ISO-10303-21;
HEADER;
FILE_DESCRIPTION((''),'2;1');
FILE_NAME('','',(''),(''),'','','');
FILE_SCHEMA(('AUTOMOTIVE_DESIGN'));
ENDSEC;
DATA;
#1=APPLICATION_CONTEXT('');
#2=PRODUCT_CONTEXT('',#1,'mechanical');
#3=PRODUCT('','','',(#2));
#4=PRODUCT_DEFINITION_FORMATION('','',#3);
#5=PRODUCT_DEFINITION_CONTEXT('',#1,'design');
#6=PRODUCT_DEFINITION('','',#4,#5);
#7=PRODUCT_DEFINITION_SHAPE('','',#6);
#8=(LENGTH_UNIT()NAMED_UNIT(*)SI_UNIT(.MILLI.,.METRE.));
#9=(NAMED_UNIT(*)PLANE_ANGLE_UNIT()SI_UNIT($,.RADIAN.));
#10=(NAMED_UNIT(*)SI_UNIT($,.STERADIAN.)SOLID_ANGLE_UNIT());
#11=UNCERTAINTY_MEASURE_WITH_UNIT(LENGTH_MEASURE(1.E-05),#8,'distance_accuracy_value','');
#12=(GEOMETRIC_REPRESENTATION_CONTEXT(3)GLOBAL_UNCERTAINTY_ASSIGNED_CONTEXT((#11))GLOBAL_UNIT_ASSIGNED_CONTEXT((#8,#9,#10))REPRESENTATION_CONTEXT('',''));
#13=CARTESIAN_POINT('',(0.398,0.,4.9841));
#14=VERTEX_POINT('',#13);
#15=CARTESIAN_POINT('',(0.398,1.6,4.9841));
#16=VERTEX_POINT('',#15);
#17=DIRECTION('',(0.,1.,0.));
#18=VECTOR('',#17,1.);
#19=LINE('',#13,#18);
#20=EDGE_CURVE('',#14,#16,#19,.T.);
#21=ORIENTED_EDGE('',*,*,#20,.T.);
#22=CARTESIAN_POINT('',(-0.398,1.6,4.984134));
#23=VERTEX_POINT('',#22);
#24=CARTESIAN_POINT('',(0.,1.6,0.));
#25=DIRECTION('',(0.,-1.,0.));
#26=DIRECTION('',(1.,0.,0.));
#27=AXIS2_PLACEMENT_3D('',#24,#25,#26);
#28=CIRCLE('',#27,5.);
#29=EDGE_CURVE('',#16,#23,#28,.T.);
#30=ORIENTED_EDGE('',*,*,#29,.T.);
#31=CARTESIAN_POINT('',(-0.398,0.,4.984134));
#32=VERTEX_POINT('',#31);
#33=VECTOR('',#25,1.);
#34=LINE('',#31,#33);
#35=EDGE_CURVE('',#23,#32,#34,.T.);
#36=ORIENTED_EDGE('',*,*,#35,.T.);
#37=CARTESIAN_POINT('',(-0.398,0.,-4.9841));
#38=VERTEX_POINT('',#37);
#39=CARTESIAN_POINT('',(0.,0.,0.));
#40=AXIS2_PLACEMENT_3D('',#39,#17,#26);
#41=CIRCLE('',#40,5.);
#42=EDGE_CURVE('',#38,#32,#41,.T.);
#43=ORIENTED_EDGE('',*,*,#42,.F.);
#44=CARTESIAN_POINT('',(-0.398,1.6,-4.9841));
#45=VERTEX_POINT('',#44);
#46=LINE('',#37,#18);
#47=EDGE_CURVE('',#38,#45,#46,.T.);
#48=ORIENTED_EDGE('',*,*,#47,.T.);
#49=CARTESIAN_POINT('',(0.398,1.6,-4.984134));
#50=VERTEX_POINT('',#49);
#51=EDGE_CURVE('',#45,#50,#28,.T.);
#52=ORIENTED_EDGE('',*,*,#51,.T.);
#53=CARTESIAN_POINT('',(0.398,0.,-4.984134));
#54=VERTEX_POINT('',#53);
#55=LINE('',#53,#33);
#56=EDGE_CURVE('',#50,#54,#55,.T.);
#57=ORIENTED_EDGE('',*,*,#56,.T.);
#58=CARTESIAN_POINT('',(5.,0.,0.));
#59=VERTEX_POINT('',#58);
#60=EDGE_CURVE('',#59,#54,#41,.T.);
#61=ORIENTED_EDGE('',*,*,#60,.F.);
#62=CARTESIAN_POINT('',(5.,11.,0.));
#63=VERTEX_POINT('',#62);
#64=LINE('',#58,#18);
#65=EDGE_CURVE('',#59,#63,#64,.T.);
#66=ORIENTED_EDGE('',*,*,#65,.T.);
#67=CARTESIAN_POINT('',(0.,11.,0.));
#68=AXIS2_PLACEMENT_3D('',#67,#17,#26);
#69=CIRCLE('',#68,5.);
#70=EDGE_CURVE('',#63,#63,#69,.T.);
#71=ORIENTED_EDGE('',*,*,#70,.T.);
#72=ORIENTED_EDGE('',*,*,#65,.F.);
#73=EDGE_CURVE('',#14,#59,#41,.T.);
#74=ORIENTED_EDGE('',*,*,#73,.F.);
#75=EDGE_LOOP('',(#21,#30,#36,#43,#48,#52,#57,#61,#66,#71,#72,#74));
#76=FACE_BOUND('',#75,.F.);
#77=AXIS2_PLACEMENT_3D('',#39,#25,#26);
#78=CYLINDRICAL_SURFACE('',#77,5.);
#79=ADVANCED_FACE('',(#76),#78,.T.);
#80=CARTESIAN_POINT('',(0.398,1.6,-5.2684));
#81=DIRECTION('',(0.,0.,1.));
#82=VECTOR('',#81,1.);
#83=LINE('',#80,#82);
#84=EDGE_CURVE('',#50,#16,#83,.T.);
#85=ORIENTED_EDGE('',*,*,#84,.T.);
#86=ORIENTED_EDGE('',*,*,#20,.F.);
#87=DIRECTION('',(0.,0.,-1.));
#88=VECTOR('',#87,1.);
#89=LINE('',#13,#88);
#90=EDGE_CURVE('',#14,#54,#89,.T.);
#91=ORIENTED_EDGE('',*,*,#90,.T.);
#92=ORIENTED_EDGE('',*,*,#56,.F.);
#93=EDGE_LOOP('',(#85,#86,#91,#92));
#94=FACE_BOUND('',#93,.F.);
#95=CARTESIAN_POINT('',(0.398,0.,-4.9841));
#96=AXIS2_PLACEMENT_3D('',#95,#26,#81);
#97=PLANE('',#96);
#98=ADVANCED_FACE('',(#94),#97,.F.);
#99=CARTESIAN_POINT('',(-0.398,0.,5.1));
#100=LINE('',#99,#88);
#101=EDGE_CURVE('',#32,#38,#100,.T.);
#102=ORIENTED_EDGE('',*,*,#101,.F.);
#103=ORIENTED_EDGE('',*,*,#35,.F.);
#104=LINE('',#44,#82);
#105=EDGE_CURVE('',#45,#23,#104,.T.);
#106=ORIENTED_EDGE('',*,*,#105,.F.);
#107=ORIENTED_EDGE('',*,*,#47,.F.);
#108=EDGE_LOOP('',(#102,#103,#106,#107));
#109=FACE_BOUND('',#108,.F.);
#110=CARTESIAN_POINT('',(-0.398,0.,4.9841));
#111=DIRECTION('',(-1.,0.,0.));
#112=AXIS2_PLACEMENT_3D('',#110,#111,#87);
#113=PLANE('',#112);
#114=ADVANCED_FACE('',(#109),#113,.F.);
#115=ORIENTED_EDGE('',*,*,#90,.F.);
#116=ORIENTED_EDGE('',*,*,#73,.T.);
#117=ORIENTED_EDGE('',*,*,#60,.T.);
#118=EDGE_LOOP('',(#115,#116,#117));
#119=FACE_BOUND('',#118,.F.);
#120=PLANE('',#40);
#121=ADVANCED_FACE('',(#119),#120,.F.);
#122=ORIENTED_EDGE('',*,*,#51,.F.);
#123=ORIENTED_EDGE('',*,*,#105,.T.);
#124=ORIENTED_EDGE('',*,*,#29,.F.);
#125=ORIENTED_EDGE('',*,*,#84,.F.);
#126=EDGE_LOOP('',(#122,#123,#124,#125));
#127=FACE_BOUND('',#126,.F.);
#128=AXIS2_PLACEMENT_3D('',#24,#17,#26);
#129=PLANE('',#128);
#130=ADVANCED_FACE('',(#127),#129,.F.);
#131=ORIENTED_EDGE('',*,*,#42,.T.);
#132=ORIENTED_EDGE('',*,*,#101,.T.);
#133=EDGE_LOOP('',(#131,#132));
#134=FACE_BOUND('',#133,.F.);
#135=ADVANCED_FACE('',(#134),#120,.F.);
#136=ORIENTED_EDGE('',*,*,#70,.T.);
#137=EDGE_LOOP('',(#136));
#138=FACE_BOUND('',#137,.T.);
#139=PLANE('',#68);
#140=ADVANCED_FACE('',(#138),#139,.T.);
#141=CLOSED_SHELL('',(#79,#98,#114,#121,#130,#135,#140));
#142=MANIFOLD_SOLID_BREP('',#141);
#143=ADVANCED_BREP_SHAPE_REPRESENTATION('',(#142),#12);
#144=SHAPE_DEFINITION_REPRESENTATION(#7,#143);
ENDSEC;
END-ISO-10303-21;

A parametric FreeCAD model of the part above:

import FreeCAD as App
import Part
import Sketcher
Q = App.Units.Quantity

doc = App.newDocument("Part")
params = doc.addObject("Spreadsheet::Sheet", "Params")
for row, (alias, value) in enumerate([
    ("pad1_length", "11 mm"),
    ("sketch2_height", "0.397 in"),
    ("pocket1_length", "0.0629921 in"),
], start=1):
    params.set(f"A{row}", alias)
    params.set(f"B{row}", "=" + value)
    params.setAlias(f"B{row}", alias)

body = doc.addObject("PartDesign::Body", "Body")

# Sketch on XZ plane
sketch1 = body.newObject("Sketcher::SketchObject", "Sketch")
sketch1.AttachmentSupport = (doc.getObject("XZ_Plane"), [""])
sketch1.MapMode = "FlatFace"
sketch1.addGeometry(Part.Circle(App.Vector(0, 0, 0), App.Vector(0, 0, 1), 5), False)
sketch1.addConstraint([
    Sketcher.Constraint("Coincident", 0, 3, -1, 1),
    Sketcher.Constraint("Diameter", 0, Q("0.3937 in")),
])
pad1 = body.newObject("PartDesign::Pad", "Pad")
pad1.Profile = sketch1
pad1.setExpression("Length", "Params.pad1_length")
pad1.Reversed = True

# Sketch on XZ plane
sketch2 = body.newObject("Sketcher::SketchObject", "Sketch001")
sketch2.AttachmentSupport = (doc.getObject("XZ_Plane"), [""])
sketch2.MapMode = "FlatFace"
sketch2.addGeometry([
    Part.LineSegment(App.Vector(0.4, 4.98, 0), App.Vector(0.4, -5.27, 0)),  # 0
    Part.LineSegment(App.Vector(0.4, -5.27, 0), App.Vector(-0.5, -5.27, 0)),  # 1
    Part.LineSegment(App.Vector(-0.5, -5.27, 0), App.Vector(-0.4, -4.98, 0)),  # 2
    Part.LineSegment(App.Vector(-0.4, -4.98, 0), App.Vector(-0.4, 5.1, 0)),  # 3
    Part.LineSegment(App.Vector(-0.4, 5.1, 0), App.Vector(0.4, 5.1, 0)),  # 4
    Part.LineSegment(App.Vector(0.4, 5.1, 0), App.Vector(0.4, 4.98, 0)),  # 5
], False)
sketch2.addConstraint([
    Sketcher.Constraint("Coincident", 0, 2, 1, 1),
    Sketcher.Constraint("Coincident", 1, 2, 2, 1),
    Sketcher.Constraint("Coincident", 2, 2, 3, 1),
    Sketcher.Constraint("Coincident", 3, 2, 4, 1),
    Sketcher.Constraint("Coincident", 4, 2, 5, 1),
    Sketcher.Constraint("Coincident", 5, 2, 0, 1),
    Sketcher.Constraint("Vertical", 0),
    Sketcher.Constraint("Horizontal", 1),
    Sketcher.Constraint("Vertical", 3),
    Sketcher.Constraint("Horizontal", 4),
    Sketcher.Constraint("Symmetric", 2, 2, 5, 2, -1, 1),
    Sketcher.Constraint("DistanceY", 3, 1, 3, 2, Q("0.397 in")),
    Sketcher.Constraint("Distance", 2, Q("0.0119 in")),
    Sketcher.Constraint("DistanceX", 1, 2, 1, 1, 0.898),
    Sketcher.Constraint("DistanceX", 4, 1, 4, 2, 0.798),
    Sketcher.Constraint("DistanceY", 0, 2, 0, 1, 10.2525),
    Sketcher.Constraint("DistanceY", 1, 2, 2, 2, Q("0.0112 in")),
])
sketch2.setExpression("Constraints[11]", "Params.sketch2_height")
pocket1 = body.newObject("PartDesign::Pocket", "Pocket")
pocket1.Profile = sketch2
pocket1.setExpression("Length", "Params.pocket1_length")

doc.recompute()
